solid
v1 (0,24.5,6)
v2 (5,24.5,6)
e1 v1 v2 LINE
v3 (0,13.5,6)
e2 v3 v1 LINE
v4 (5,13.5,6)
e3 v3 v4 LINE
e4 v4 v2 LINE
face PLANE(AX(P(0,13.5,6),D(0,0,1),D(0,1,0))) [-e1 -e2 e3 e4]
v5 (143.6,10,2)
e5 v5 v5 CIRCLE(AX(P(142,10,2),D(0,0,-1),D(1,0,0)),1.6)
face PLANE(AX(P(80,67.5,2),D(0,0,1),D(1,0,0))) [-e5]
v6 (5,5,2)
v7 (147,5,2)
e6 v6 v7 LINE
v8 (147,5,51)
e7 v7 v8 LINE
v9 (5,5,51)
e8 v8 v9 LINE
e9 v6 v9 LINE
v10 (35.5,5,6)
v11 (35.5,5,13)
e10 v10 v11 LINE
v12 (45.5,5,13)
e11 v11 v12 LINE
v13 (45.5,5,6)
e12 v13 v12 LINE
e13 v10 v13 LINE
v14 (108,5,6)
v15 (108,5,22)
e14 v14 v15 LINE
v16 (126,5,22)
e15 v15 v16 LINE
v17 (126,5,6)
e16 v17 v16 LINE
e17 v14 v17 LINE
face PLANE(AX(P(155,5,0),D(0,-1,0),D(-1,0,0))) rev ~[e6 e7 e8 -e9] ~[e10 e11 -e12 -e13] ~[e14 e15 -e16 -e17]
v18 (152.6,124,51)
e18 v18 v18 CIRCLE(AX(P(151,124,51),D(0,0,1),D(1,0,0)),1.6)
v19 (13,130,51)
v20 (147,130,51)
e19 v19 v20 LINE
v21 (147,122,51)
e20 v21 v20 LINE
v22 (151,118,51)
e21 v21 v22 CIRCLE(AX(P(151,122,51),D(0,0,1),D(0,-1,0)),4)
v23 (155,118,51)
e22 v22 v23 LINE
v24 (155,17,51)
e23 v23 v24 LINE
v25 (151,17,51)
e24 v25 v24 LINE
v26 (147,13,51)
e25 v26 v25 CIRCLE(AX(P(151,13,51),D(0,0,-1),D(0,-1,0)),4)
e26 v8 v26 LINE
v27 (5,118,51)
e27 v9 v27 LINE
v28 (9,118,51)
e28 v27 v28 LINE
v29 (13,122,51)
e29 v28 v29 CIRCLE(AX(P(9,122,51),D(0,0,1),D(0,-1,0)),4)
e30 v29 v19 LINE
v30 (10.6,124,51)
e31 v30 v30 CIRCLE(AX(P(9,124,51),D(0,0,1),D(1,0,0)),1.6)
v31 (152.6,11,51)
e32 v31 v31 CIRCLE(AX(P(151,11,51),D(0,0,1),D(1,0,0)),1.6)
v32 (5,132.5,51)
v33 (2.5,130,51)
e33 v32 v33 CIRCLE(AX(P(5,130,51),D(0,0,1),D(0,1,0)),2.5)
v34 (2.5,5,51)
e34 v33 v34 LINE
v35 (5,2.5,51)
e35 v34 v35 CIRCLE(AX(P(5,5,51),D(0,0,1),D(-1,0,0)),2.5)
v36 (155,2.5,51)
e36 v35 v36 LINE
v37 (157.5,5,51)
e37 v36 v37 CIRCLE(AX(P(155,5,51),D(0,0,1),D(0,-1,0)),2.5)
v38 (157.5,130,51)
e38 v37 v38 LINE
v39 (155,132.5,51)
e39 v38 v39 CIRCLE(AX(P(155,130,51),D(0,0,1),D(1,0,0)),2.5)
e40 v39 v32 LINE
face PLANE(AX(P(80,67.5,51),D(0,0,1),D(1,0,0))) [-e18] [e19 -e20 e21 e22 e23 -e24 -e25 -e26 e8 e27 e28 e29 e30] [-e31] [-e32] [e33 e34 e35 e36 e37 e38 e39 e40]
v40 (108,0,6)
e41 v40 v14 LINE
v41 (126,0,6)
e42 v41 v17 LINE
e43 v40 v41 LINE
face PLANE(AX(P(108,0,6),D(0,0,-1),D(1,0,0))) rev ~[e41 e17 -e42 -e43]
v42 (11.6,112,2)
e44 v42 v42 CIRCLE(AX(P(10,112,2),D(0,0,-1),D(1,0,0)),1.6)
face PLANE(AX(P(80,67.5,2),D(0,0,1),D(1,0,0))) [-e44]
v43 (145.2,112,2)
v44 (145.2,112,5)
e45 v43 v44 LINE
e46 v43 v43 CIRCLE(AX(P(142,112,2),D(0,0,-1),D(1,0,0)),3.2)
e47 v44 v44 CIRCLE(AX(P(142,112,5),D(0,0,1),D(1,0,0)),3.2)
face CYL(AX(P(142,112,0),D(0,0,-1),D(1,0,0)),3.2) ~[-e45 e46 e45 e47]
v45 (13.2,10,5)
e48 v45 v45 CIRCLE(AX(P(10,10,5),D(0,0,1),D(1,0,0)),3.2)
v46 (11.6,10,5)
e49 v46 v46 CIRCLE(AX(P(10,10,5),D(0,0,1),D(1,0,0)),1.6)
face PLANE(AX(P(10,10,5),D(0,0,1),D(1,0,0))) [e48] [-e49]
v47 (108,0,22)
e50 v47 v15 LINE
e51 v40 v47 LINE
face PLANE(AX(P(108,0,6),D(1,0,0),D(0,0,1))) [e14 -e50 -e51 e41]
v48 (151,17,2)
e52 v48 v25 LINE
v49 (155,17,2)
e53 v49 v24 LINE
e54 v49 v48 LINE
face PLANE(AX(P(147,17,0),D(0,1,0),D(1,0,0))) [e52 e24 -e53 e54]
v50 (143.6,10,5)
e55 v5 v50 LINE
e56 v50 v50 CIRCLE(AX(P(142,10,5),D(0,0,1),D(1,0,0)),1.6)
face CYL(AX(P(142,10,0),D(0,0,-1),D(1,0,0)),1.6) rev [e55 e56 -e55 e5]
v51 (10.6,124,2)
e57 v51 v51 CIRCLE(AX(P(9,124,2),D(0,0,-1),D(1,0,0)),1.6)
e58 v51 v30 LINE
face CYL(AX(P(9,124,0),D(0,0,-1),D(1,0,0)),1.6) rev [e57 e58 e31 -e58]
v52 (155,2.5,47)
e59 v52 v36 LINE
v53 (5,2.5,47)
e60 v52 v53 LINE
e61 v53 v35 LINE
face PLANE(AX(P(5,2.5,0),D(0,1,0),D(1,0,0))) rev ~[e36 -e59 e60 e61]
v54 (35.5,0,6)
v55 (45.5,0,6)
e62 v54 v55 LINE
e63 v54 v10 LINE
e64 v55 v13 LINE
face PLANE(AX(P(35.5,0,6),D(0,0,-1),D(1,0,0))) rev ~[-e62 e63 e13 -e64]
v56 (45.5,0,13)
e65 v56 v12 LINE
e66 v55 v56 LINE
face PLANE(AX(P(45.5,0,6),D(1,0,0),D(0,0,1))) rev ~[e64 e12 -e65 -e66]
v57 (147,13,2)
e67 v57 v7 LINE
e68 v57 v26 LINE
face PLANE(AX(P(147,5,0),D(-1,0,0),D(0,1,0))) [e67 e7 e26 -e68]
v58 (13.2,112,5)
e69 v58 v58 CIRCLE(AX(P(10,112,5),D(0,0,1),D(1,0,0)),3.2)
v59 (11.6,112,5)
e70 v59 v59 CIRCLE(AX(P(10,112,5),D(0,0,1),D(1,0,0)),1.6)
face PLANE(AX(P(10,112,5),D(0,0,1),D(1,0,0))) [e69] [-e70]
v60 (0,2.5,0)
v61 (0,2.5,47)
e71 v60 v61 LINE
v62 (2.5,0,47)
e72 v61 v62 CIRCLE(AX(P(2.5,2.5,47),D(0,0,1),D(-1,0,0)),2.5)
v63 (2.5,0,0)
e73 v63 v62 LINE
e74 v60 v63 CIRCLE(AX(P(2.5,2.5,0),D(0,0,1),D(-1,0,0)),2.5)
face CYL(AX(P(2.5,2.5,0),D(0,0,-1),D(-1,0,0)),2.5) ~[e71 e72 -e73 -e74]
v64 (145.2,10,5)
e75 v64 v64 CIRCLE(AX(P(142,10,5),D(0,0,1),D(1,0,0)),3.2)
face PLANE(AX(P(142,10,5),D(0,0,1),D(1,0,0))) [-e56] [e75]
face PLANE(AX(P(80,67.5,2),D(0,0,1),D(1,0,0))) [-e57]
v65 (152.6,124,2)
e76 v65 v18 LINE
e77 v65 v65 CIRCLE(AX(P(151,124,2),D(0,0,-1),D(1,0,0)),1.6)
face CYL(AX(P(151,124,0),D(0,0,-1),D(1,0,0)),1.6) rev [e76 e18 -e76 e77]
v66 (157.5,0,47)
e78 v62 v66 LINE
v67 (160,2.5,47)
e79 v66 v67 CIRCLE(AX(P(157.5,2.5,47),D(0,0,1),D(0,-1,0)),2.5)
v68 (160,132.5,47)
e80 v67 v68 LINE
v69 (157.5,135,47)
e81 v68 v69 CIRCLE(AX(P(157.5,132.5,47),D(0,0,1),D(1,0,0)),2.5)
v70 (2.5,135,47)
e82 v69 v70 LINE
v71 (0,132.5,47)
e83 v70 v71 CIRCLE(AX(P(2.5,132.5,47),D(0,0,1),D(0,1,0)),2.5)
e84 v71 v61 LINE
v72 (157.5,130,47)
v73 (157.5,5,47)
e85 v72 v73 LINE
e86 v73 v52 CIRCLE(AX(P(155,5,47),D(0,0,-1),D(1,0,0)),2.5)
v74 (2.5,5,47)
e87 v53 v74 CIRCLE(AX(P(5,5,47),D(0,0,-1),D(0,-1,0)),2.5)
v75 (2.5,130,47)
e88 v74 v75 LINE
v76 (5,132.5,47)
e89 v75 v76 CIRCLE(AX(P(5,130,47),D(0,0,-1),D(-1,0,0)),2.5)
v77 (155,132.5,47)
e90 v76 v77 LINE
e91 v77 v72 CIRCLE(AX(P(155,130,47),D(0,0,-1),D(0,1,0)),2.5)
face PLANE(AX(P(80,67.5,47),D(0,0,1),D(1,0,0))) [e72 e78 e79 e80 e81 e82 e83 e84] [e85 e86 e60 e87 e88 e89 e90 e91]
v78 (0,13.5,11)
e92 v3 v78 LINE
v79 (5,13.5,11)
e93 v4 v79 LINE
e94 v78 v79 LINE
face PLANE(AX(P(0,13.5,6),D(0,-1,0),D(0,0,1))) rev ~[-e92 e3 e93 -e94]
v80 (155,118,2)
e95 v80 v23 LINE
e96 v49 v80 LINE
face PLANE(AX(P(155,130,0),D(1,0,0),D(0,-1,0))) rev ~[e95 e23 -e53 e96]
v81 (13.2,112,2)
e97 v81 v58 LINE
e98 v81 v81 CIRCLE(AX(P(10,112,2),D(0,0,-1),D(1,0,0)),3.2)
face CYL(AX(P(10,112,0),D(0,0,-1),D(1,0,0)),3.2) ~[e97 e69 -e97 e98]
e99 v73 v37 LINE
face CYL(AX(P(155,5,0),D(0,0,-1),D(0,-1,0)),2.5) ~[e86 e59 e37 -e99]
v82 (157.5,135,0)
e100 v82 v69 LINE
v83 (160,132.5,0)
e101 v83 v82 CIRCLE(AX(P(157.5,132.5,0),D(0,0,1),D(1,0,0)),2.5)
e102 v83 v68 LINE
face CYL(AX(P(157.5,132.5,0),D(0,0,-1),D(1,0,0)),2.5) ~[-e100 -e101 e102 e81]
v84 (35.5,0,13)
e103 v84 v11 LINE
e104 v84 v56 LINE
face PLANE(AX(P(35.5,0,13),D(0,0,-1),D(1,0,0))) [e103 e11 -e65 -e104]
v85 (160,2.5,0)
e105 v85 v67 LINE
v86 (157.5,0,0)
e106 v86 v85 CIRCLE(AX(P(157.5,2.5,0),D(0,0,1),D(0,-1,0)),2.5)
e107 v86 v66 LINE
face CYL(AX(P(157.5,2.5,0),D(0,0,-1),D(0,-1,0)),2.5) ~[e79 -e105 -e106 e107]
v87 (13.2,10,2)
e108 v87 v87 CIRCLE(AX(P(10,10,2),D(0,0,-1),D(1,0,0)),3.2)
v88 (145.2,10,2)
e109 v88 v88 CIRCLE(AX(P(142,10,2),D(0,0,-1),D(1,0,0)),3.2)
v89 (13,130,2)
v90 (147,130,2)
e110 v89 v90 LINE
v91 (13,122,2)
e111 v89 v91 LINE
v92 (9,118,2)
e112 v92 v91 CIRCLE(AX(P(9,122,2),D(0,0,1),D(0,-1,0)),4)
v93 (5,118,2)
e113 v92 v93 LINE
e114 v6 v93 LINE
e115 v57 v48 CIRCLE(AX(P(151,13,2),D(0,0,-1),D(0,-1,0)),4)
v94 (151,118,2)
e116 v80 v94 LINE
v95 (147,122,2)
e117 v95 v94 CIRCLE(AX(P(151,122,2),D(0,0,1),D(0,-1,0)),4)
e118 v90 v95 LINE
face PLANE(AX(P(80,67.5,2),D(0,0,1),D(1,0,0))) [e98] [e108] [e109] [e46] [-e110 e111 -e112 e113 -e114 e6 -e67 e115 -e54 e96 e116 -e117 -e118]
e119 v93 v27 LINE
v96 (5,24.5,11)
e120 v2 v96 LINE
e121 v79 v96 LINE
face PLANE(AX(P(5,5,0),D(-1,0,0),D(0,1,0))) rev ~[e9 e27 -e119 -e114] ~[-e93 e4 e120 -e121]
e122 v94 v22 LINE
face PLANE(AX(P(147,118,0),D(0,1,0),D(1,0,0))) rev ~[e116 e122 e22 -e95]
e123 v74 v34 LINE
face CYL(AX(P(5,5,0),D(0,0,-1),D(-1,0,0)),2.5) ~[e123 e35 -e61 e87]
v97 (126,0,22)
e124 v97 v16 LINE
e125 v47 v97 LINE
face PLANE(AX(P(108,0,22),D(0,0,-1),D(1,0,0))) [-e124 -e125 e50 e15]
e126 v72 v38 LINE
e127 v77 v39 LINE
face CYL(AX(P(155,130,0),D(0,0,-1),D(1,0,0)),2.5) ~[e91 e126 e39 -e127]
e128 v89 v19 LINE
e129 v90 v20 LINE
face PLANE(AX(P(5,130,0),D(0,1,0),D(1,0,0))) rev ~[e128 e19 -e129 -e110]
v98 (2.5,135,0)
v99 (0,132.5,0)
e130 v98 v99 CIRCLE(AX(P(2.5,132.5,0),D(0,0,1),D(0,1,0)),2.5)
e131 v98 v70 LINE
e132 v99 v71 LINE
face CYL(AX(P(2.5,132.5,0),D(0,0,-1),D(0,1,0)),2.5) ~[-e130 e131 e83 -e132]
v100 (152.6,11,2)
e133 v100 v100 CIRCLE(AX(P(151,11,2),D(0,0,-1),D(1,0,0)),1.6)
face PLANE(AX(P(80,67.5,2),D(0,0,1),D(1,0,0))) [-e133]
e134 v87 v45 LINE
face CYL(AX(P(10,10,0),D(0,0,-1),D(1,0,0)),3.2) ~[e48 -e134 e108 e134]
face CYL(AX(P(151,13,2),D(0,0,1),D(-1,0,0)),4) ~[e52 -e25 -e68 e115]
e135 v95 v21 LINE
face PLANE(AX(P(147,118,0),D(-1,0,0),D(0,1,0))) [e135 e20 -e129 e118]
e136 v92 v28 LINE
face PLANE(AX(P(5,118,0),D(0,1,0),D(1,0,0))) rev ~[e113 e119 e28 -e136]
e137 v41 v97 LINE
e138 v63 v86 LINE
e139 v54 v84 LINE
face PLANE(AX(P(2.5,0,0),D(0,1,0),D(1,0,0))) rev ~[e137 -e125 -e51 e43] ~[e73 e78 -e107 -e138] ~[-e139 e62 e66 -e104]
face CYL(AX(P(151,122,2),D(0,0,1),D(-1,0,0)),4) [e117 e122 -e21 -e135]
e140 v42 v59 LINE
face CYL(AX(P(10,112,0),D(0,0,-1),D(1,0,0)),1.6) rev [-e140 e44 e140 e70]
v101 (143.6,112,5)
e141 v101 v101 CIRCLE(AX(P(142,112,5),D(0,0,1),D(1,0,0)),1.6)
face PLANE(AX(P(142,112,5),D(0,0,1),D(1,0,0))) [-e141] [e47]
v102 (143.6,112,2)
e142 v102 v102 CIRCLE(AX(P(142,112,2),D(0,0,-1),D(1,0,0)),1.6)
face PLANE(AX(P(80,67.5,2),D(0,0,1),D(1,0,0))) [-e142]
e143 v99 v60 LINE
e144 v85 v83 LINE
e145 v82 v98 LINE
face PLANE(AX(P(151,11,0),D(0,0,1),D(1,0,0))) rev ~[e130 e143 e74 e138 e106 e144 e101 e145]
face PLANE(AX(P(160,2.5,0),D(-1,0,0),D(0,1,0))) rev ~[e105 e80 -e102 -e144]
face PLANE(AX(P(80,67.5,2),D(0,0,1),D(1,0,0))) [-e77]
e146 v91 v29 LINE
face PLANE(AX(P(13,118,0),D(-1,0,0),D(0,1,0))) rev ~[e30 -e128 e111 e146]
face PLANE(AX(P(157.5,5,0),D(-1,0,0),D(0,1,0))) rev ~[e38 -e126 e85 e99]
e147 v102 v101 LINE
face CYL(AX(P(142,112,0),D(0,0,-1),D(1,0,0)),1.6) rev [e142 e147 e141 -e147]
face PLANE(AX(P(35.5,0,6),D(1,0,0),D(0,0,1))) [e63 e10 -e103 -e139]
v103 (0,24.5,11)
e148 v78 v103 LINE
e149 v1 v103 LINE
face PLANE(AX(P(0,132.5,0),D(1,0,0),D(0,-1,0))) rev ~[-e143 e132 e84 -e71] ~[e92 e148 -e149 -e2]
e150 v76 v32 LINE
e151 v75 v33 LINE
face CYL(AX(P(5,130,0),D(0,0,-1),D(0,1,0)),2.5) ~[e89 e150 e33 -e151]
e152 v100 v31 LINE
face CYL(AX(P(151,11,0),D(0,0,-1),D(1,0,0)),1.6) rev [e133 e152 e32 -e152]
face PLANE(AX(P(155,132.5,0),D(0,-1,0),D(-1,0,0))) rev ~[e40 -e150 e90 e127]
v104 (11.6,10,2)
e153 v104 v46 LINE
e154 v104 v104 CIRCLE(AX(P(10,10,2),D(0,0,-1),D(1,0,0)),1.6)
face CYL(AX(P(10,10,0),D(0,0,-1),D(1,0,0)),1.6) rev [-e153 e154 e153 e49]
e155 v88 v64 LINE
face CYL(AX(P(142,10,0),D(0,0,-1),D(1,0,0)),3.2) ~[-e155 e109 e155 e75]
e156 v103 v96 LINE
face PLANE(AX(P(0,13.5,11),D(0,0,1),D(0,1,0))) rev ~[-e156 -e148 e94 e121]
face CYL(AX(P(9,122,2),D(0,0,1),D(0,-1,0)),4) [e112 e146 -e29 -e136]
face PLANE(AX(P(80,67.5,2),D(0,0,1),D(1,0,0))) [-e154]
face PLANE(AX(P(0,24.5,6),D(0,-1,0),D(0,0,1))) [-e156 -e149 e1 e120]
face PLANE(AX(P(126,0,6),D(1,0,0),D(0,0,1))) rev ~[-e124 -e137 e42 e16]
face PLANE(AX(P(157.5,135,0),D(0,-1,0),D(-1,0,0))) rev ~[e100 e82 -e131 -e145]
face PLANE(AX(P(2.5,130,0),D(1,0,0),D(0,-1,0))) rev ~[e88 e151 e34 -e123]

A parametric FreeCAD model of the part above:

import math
import FreeCAD as App
import Part
import Sketcher
from FreeCAD import Vector
Q = App.Units.Quantity


def edges_at(feature, points):
    """Names of the edges that pass closest to the given points."""
    edges = feature.Shape.Edges
    near = lambda p: min(range(len(edges)), key=lambda i: edges[i].distToShape(Part.Vertex(*p))[0])
    return sorted({f"Edge{near(p) + 1}" for p in points})

doc = App.newDocument("Part")
params = doc.addObject("Spreadsheet::Sheet", "Params")
for row, (alias, value) in enumerate([
    ("sketch1_width", "150 mm"),
    ("sketch1_height", "125 mm"),
    ("pad1_length", "2 mm"),
    ("sketch2_radius", "2.5 mm"),
    ("sketch2_width", "150 mm"),
    ("sketch2_height", "125 mm"),
    ("pad2_length", "51 mm"),
    ("sketch3_radius", "2.5 mm"),
    ("sketch3_width", "155 mm"),
    ("sketch3_height", "130 mm"),
    ("pad3_length", "47 mm"),
    ("sketch4_diameter", "6.4 mm"),
    ("sketch4_diameter2", "3.2 mm"),
    ("pad4_length", "5 mm"),
    ("sketch5_width", "18 mm"),
    ("sketch5_width2", "10 mm"),
    ("sketch5_height", "16 mm"),
    ("sketch5_height2", "7 mm"),
    ("pocket1_length", "15 mm"),
    ("sketch6_width", "11 mm"),
    ("sketch6_height", "5 mm"),
    ("pocket2_length", "15 mm"),
    ("sketch7_diameter", "3.2 mm"),
    ("sketch7_width", "8 mm"),
    ("sketch7_height", "12 mm"),
    ("pad5_length", "51 mm"),
    ("fillet_radius", "4 mm"),
], start=1):
    params.set(f"A{row}", alias)
    params.set(f"B{row}", "=" + value)
    params.setAlias(f"B{row}", alias)

body = doc.addObject("PartDesign::Body", "Body")

# Sketch on XY plane
sketch1 = body.newObject("Sketcher::SketchObject", "Sketch")
sketch1.AttachmentSupport = (doc.getObject("XY_Plane"), [""])
sketch1.MapMode = "FlatFace"
sketch1.addGeometry(Part.LineSegment(Vector(5, 130, 0), Vector(5, 5, 0)), False)
sketch1.addGeometry(Part.LineSegment(Vector(5, 5, 0), Vector(155, 5, 0)), False)
sketch1.addGeometry(Part.LineSegment(Vector(155, 5, 0), Vector(155, 130, 0)), False)
sketch1.addGeometry(Part.LineSegment(Vector(155, 130, 0), Vector(5, 130, 0)), False)
sketch1.addConstraint(Sketcher.Constraint("Coincident", 0, 2, 1, 1))
sketch1.addConstraint(Sketcher.Constraint("Coincident", 1, 2, 2, 1))
sketch1.addConstraint(Sketcher.Constraint("Coincident", 2, 2, 3, 1))
sketch1.addConstraint(Sketcher.Constraint("Coincident", 3, 2, 0, 1))
sketch1.addConstraint(Sketcher.Constraint("Vertical", 0))
sketch1.addConstraint(Sketcher.Constraint("Horizontal", 1))
sketch1.addConstraint(Sketcher.Constraint("Vertical", 2))
sketch1.addConstraint(Sketcher.Constraint("Horizontal", 3))
sketch1.addConstraint(Sketcher.Constraint("DistanceX", 1, 1, 1, 2, Q("150 mm")))
sketch1.addConstraint(Sketcher.Constraint("DistanceY", 0, 2, 0, 1, Q("125 mm")))
sketch1.addConstraint(Sketcher.Constraint("DistanceX", -1, 1, 0, 2, Q("5 mm")))
sketch1.addConstraint(Sketcher.Constraint("DistanceY", -1, 1, 0, 2, Q("5 mm")))
sketch1.setExpression("Constraints[8]", "Params.sketch1_width")
sketch1.setExpression("Constraints[9]", "Params.sketch1_height")
pad1 = body.newObject("PartDesign::Pad", "Pad")
pad1.Profile = sketch1
pad1.setExpression("Length", "Params.pad1_length")

# Sketch on XY plane
sketch2 = body.newObject("Sketcher::SketchObject", "Sketch001")
sketch2.AttachmentSupport = (doc.getObject("XY_Plane"), [""])
sketch2.MapMode = "FlatFace"
sketch2.addGeometry(Part.ArcOfCircle(Part.Circle(Vector(5, 5, 0), Vector(0, 0, 1), 2.5), math.radians(180), math.radians(270)), False)
sketch2.addGeometry(Part.LineSegment(Vector(5, 2.5, 0), Vector(155, 2.5, 0)), False)
sketch2.addGeometry(Part.ArcOfCircle(Part.Circle(Vector(155, 5, 0), Vector(0, 0, 1), 2.5), math.radians(-90), math.radians(0)), False)
sketch2.addGeometry(Part.LineSegment(Vector(157.5, 5, 0), Vector(157.5, 130, 0)), False)
sketch2.addGeometry(Part.ArcOfCircle(Part.Circle(Vector(155, 130, 0), Vector(0, 0, 1), 2.5), math.radians(0), math.radians(90)), False)
sketch2.addGeometry(Part.LineSegment(Vector(155, 132.5, 0), Vector(5, 132.5, 0)), False)
sketch2.addGeometry(Part.ArcOfCircle(Part.Circle(Vector(5, 130, 0), Vector(0, 0, 1), 2.5), math.radians(90), math.radians(180)), False)
sketch2.addGeometry(Part.LineSegment(Vector(2.5, 130, 0), Vector(2.5, 5, 0)), False)
sketch2.addGeometry(Part.LineSegment(Vector(155, 5, 0), Vector(5, 5, 0)), False)
sketch2.addGeometry(Part.LineSegment(Vector(5, 5, 0), Vector(5, 130, 0)), False)
sketch2.addGeometry(Part.LineSegment(Vector(5, 130, 0), Vector(155, 130, 0)), False)
sketch2.addGeometry(Part.LineSegment(Vector(155, 130, 0), Vector(155, 5, 0)), False)
sketch2.addConstraint(Sketcher.Constraint("Tangent", 0, 2, 1, 1))
sketch2.addConstraint(Sketcher.Constraint("Tangent", 1, 2, 2, 1))
sketch2.addConstraint(Sketcher.Constraint("Tangent", 2, 2, 3, 1))
sketch2.addConstraint(Sketcher.Constraint("Tangent", 3, 2, 4, 1))
sketch2.addConstraint(Sketcher.Constraint("Tangent", 4, 2, 5, 1))
sketch2.addConstraint(Sketcher.Constraint("Tangent", 5, 2, 6, 1))
sketch2.addConstraint(Sketcher.Constraint("Tangent", 6, 2, 7, 1))
sketch2.addConstraint(Sketcher.Constraint("Tangent", 7, 2, 0, 1))
sketch2.addConstraint(Sketcher.Constraint("Coincident", 8, 2, 9, 1))
sketch2.addConstraint(Sketcher.Constraint("Coincident", 9, 2, 10, 1))
sketch2.addConstraint(Sketcher.Constraint("Coincident", 10, 2, 11, 1))
sketch2.addConstraint(Sketcher.Constraint("Coincident", 11, 2, 8, 1))
sketch2.addConstraint(Sketcher.Constraint("Horizontal", 1))
sketch2.addConstraint(Sketcher.Constraint("Vertical", 3))
sketch2.addConstraint(Sketcher.Constraint("Horizontal", 5))
sketch2.addConstraint(Sketcher.Constraint("Vertical", 7))
sketch2.addConstraint(Sketcher.Constraint("Horizontal", 8))
sketch2.addConstraint(Sketcher.Constraint("Vertical", 9))
sketch2.addConstraint(Sketcher.Constraint("Horizontal", 10))
sketch2.addConstraint(Sketcher.Constraint("Vertical", 11))
sketch2.addConstraint(Sketcher.Constraint("Coincident", 8, 2, 0, 3))
sketch2.addConstraint(Sketcher.Constraint("Coincident", 9, 2, 6, 3))
sketch2.addConstraint(Sketcher.Constraint("Coincident", 10, 2, 4, 3))
sketch2.addConstraint(Sketcher.Constraint("Equal", 0, 2))
sketch2.addConstraint(Sketcher.Constraint("Radius", 0, Q("2.5 mm")))
sketch2.addConstraint(Sketcher.Constraint("DistanceX", 1, 1, 1, 2, Q("150 mm")))
sketch2.addConstraint(Sketcher.Constraint("DistanceY", 3, 1, 3, 2, Q("125 mm")))
sketch2.addConstraint(Sketcher.Constraint("DistanceX", -1, 1, 0, 3, Q("5 mm")))
sketch2.addConstraint(Sketcher.Constraint("DistanceY", -1, 1, 0, 3, Q("5 mm")))
sketch2.setExpression("Constraints[24]", "Params.sketch2_radius")
sketch2.setExpression("Constraints[25]", "Params.sketch2_width")
sketch2.setExpression("Constraints[26]", "Params.sketch2_height")
pad2 = body.newObject("PartDesign::Pad", "Pad001")
pad2.Profile = sketch2
pad2.setExpression("Length", "Params.pad2_length")

# Sketch on XY plane
sketch3 = body.newObject("Sketcher::SketchObject", "Sketch002")
sketch3.AttachmentSupport = (doc.getObject("XY_Plane"), [""])
sketch3.MapMode = "FlatFace"
sketch3.addGeometry(Part.ArcOfCircle(Part.Circle(Vector(2.5, 2.5, 0), Vector(0, 0, 1), 2.5), math.radians(180), math.radians(270)), False)
sketch3.addGeometry(Part.LineSegment(Vector(2.5, 0, 0), Vector(157.5, 0, 0)), False)
sketch3.addGeometry(Part.ArcOfCircle(Part.Circle(Vector(157.5, 2.5, 0), Vector(0, 0, 1), 2.5), math.radians(-90), math.radians(0)), False)
sketch3.addGeometry(Part.LineSegment(Vector(160, 2.5, 0), Vector(160, 132.5, 0)), False)
sketch3.addGeometry(Part.ArcOfCircle(Part.Circle(Vector(157.5, 132.5, 0), Vector(0, 0, 1), 2.5), math.radians(0), math.radians(90)), False)
sketch3.addGeometry(Part.LineSegment(Vector(157.5, 135, 0), Vector(2.5, 135, 0)), False)
sketch3.addGeometry(Part.ArcOfCircle(Part.Circle(Vector(2.5, 132.5, 0), Vector(0, 0, 1), 2.5), math.radians(90), math.radians(180)), False)
sketch3.addGeometry(Part.LineSegment(Vector(0, 132.5, 0), Vector(0, 2.5, 0)), False)
sketch3.addGeometry(Part.LineSegment(Vector(155, 2.5, 0), Vector(5, 2.5, 0)), False)
sketch3.addGeometry(Part.ArcOfCircle(Part.Circle(Vector(5, 5, 0), Vector(0, 0, 1), 2.5), math.radians(180), math.radians(270)), False)
sketch3.addGeometry(Part.LineSegment(Vector(2.5, 5, 0), Vector(2.5, 130, 0)), False)
sketch3.addGeometry(Part.ArcOfCircle(Part.Circle(Vector(5, 130, 0), Vector(0, 0, 1), 2.5), math.radians(90), math.radians(180)), False)
sketch3.addGeometry(Part.LineSegment(Vector(5, 132.5, 0), Vector(155, 132.5, 0)), False)
sketch3.addGeometry(Part.ArcOfCircle(Part.Circle(Vector(155, 130, 0), Vector(0, 0, 1), 2.5), math.radians(0), math.radians(90)), False)
sketch3.addGeometry(Part.LineSegment(Vector(157.5, 130, 0), Vector(157.5, 5, 0)), False)
sketch3.addGeometry(Part.ArcOfCircle(Part.Circle(Vector(155, 5, 0), Vector(0, 0, 1), 2.5), math.radians(-90), math.radians(0)), False)
sketch3.addConstraint(Sketcher.Constraint("Tangent", 0, 2, 1, 1))
sketch3.addConstraint(Sketcher.Constraint("Tangent", 1, 2, 2, 1))
sketch3.addConstraint(Sketcher.Constraint("Tangent", 2, 2, 3, 1))
sketch3.addConstraint(Sketcher.Constraint("Tangent", 3, 2, 4, 1))
sketch3.addConstraint(Sketcher.Constraint("Tangent", 4, 2, 5, 1))
sketch3.addConstraint(Sketcher.Constraint("Tangent", 5, 2, 6, 1))
sketch3.addConstraint(Sketcher.Constraint("Tangent", 6, 2, 7, 1))
sketch3.addConstraint(Sketcher.Constraint("Tangent", 7, 2, 0, 1))
sketch3.addConstraint(Sketcher.Constraint("Tangent", 8, 2, 9, 2))
sketch3.addConstraint(Sketcher.Constraint("Tangent", 9, 1, 10, 1))
sketch3.addConstraint(Sketcher.Constraint("Tangent", 10, 2, 11, 2))
sketch3.addConstraint(Sketcher.Constraint("Tangent", 11, 1, 12, 1))
sketch3.addConstraint(Sketcher.Constraint("Tangent", 12, 2, 13, 2))
sketch3.addConstraint(Sketcher.Constraint("Tangent", 13, 1, 14, 1))
sketch3.addConstraint(Sketcher.Constraint("Tangent", 14, 2, 15, 2))
sketch3.addConstraint(Sketcher.Constraint("Tangent", 15, 1, 8, 1))
sketch3.addConstraint(Sketcher.Constraint("Horizontal", 1))
sketch3.addConstraint(Sketcher.Constraint("Vertical", 3))
sketch3.addConstraint(Sketcher.Constraint("Horizontal", 5))
sketch3.addConstraint(Sketcher.Constraint("Vertical", 7))
sketch3.addConstraint(Sketcher.Constraint("Horizontal", 8))
sketch3.addConstraint(Sketcher.Constraint("Vertical", 10))
sketch3.addConstraint(Sketcher.Constraint("Horizontal", 12))
sketch3.addConstraint(Sketcher.Constraint("Vertical", 14))
sketch3.addConstraint(Sketcher.Constraint("Equal", 0, 2))
sketch3.addConstraint(Sketcher.Constraint("Equal", 2, 4))
sketch3.addConstraint(Sketcher.Constraint("Equal", 4, 6))
sketch3.addConstraint(Sketcher.Constraint("Equal", 6, 9))
sketch3.addConstraint(Sketcher.Constraint("Equal", 9, 11))
sketch3.addConstraint(Sketcher.Constraint("Equal", 11, 13))
sketch3.addConstraint(Sketcher.Constraint("Equal", 13, 15))
sketch3.addConstraint(Sketcher.Constraint("PointOnObject", 0, 2, -1))
sketch3.addConstraint(Sketcher.Constraint("PointOnObject", 6, 2, -2))
sketch3.addConstraint(Sketcher.Constraint("Horizontal", 7, 2, 8, 2))
sketch3.addConstraint(Sketcher.Constraint("Horizontal", 6, 2, 11, 1))
sketch3.addConstraint(Sketcher.Constraint("Vertical", 5, 2, 9, 1))
sketch3.addConstraint(Sketcher.Constraint("Vertical", 4, 2, 13, 1))
sketch3.addConstraint(Sketcher.Constraint("Radius", 0, Q("2.5 mm")))
sketch3.addConstraint(Sketcher.Constraint("DistanceX", 1, 1, 1, 2, Q("155 mm")))
sketch3.addConstraint(Sketcher.Constraint("DistanceY", 3, 1, 3, 2, Q("130 mm")))
sketch3.setExpression("Constraints[37]", "Params.sketch3_radius")
sketch3.setExpression("Constraints[38]", "Params.sketch3_width")
sketch3.setExpression("Constraints[39]", "Params.sketch3_height")
pad3 = body.newObject("PartDesign::Pad", "Pad002")
pad3.Profile = sketch3
pad3.setExpression("Length", "Params.pad3_length")

# Sketch on XY plane
sketch4 = body.newObject("Sketcher::SketchObject", "Sketch003")
sketch4.AttachmentSupport = (doc.getObject("XY_Plane"), [""])
sketch4.MapMode = "FlatFace"
sketch4.addGeometry(Part.Circle(Vector(142, 112, 0), Vector(0, 0, 1), 3.2), False)
sketch4.addGeometry(Part.Circle(Vector(142, 112, 0), Vector(0, 0, 1), 1.6), False)
sketch4.addGeometry(Part.Circle(Vector(10, 112, 0), Vector(0, 0, 1), 3.2), False)
sketch4.addGeometry(Part.Circle(Vector(10, 112, 0), Vector(0, 0, 1), 1.6), False)
sketch4.addGeometry(Part.Circle(Vector(10, 10, 0), Vector(0, 0, 1), 3.2), False)
sketch4.addGeometry(Part.Circle(Vector(10, 10, 0), Vector(0, 0, 1), 1.6), False)
sketch4.addGeometry(Part.Circle(Vector(142, 10, 0), Vector(0, 0, 1), 3.2), False)
sketch4.addGeometry(Part.Circle(Vector(142, 10, 0), Vector(0, 0, 1), 1.6), False)
sketch4.addConstraint(Sketcher.Constraint("Coincident", 1, 3, 0, 3))
sketch4.addConstraint(Sketcher.Constraint("Coincident", 3, 3, 2, 3))
sketch4.addConstraint(Sketcher.Constraint("Coincident", 5, 3, 4, 3))
sketch4.addConstraint(Sketcher.Constraint("Coincident", 7, 3, 6, 3))
sketch4.addConstraint(Sketcher.Constraint("Equal", 0, 2))
sketch4.addConstraint(Sketcher.Constraint("Equal", 1, 3))
sketch4.addConstraint(Sketcher.Constraint("Equal", 2, 4))
sketch4.addConstraint(Sketcher.Constraint("Equal", 3, 5))
sketch4.addConstraint(Sketcher.Constraint("Equal", 4, 6))
sketch4.addConstraint(Sketcher.Constraint("Equal", 5, 7))
sketch4.addConstraint(Sketcher.Constraint("Horizontal", 1, 3, 2, 3))
sketch4.addConstraint(Sketcher.Constraint("Horizontal", 5, 3, 6, 3))
sketch4.addConstraint(Sketcher.Constraint("Vertical", 3, 3, 4, 3))
sketch4.addConstraint(Sketcher.Constraint("Vertical", 1, 3, 6, 3))
sketch4.addConstraint(Sketcher.Constraint("Diameter", 0, Q("6.4 mm")))
sketch4.addConstraint(Sketcher.Constraint("Diameter", 1, Q("3.2 mm")))
sketch4.addConstraint(Sketcher.Constraint("DistanceX", -1, 1, 0, 3, Q("142 mm")))
sketch4.addConstraint(Sketcher.Constraint("DistanceY", -1, 1, 0, 3, Q("112 mm")))
sketch4.addConstraint(Sketcher.Constraint("DistanceX", -1, 1, 2, 3, Q("10 mm")))
sketch4.addConstraint(Sketcher.Constraint("DistanceY", -1, 1, 4, 3, Q("10 mm")))
sketch4.setExpression("Constraints[14]", "Params.sketch4_diameter")
sketch4.setExpression("Constraints[15]", "Params.sketch4_diameter2")
pad4 = body.newObject("PartDesign::Pad", "Pad003")
pad4.Profile = sketch4
pad4.setExpression("Length", "Params.pad4_length")

# Sketch on XZ plane
sketch5 = body.newObject("Sketcher::SketchObject", "Sketch004")
sketch5.AttachmentSupport = (doc.getObject("XZ_Plane"), [""])
sketch5.MapMode = "FlatFace"
sketch5.addGeometry(Part.LineSegment(Vector(108, 22, 0), Vector(108, 6, 0)), False)
sketch5.addGeometry(Part.LineSegment(Vector(108, 6, 0), Vector(126, 6, 0)), False)
sketch5.addGeometry(Part.LineSegment(Vector(126, 6, 0), Vector(126, 22, 0)), False)
sketch5.addGeometry(Part.LineSegment(Vector(126, 22, 0), Vector(108, 22, 0)), False)
sketch5.addGeometry(Part.LineSegment(Vector(35.5, 13, 0), Vector(35.5, 6, 0)), False)
sketch5.addGeometry(Part.LineSegment(Vector(35.5, 6, 0), Vector(45.5, 6, 0)), False)
sketch5.addGeometry(Part.LineSegment(Vector(45.5, 6, 0), Vector(45.5, 13, 0)), False)
sketch5.addGeometry(Part.LineSegment(Vector(45.5, 13, 0), Vector(35.5, 13, 0)), False)
sketch5.addConstraint(Sketcher.Constraint("Coincident", 0, 2, 1, 1))
sketch5.addConstraint(Sketcher.Constraint("Coincident", 1, 2, 2, 1))
sketch5.addConstraint(Sketcher.Constraint("Coincident", 2, 2, 3, 1))
sketch5.addConstraint(Sketcher.Constraint("Coincident", 3, 2, 0, 1))
sketch5.addConstraint(Sketcher.Constraint("Coincident", 4, 2, 5, 1))
sketch5.addConstraint(Sketcher.Constraint("Coincident", 5, 2, 6, 1))
sketch5.addConstraint(Sketcher.Constraint("Coincident", 6, 2, 7, 1))
sketch5.addConstraint(Sketcher.Constraint("Coincident", 7, 2, 4, 1))
sketch5.addConstraint(Sketcher.Constraint("Vertical", 0))
sketch5.addConstraint(Sketcher.Constraint("Horizontal", 1))
sketch5.addConstraint(Sketcher.Constraint("Vertical", 2))
sketch5.addConstraint(Sketcher.Constraint("Horizontal", 3))
sketch5.addConstraint(Sketcher.Constraint("Vertical", 4))
sketch5.addConstraint(Sketcher.Constraint("Horizontal", 5))
sketch5.addConstraint(Sketcher.Constraint("Vertical", 6))
sketch5.addConstraint(Sketcher.Constraint("Horizontal", 7))
sketch5.addConstraint(Sketcher.Constraint("Horizontal", 1, 2, 4, 2))
sketch5.addConstraint(Sketcher.Constraint("DistanceX", 1, 1, 1, 2, Q("18 mm")))
sketch5.addConstraint(Sketcher.Constraint("DistanceX", 5, 1, 5, 2, Q("10 mm")))
sketch5.addConstraint(Sketcher.Constraint("DistanceY", 0, 2, 0, 1, Q("16 mm")))
sketch5.addConstraint(Sketcher.Constraint("DistanceY", 4, 2, 4, 1, Q("7 mm")))
sketch5.addConstraint(Sketcher.Constraint("DistanceX", -1, 1, 0, 2, Q("108 mm")))
sketch5.addConstraint(Sketcher.Constraint("DistanceY", -1, 1, 0, 2, Q("6 mm")))
sketch5.addConstraint(Sketcher.Constraint("DistanceX", -1, 1, 4, 2, Q("35.5 mm")))
sketch5.setExpression("Constraints[17]", "Params.sketch5_width")
sketch5.setExpression("Constraints[18]", "Params.sketch5_width2")
sketch5.setExpression("Constraints[19]", "Params.sketch5_height")
sketch5.setExpression("Constraints[20]", "Params.sketch5_height2")
pocket1 = body.newObject("PartDesign::Pocket", "Pocket")
pocket1.Profile = sketch5
pocket1.setExpression("Length", "Params.pocket1_length")

# Sketch on YZ plane
sketch6 = body.newObject("Sketcher::SketchObject", "Sketch005")
sketch6.AttachmentSupport = (doc.getObject("YZ_Plane"), [""])
sketch6.MapMode = "FlatFace"
sketch6.addGeometry(Part.LineSegment(Vector(24.5, 6, 0), Vector(13.5, 6, 0)), False)
sketch6.addGeometry(Part.LineSegment(Vector(13.5, 6, 0), Vector(13.5, 11, 0)), False)
sketch6.addGeometry(Part.LineSegment(Vector(13.5, 11, 0), Vector(24.5, 11, 0)), False)
sketch6.addGeometry(Part.LineSegment(Vector(24.5, 11, 0), Vector(24.5, 6, 0)), False)
sketch6.addConstraint(Sketcher.Constraint("Coincident", 0, 2, 1, 1))
sketch6.addConstraint(Sketcher.Constraint("Coincident", 1, 2, 2, 1))
sketch6.addConstraint(Sketcher.Constraint("Coincident", 2, 2, 3, 1))
sketch6.addConstraint(Sketcher.Constraint("Coincident", 3, 2, 0, 1))
sketch6.addConstraint(Sketcher.Constraint("Horizontal", 0))
sketch6.addConstraint(Sketcher.Constraint("Vertical", 1))
sketch6.addConstraint(Sketcher.Constraint("Horizontal", 2))
sketch6.addConstraint(Sketcher.Constraint("Vertical", 3))
sketch6.addConstraint(Sketcher.Constraint("DistanceX", 0, 2, 0, 1, Q("11 mm")))
sketch6.addConstraint(Sketcher.Constraint("DistanceY", 1, 1, 1, 2, Q("5 mm")))
sketch6.addConstraint(Sketcher.Constraint("DistanceY", -1, 1, 0, 2, Q("6 mm")))
sketch6.addConstraint(Sketcher.Constraint("DistanceX", -1, 1, 0, 2, Q("13.5 mm")))
sketch6.setExpression("Constraints[8]", "Params.sketch6_width")
sketch6.setExpression("Constraints[9]", "Params.sketch6_height")
pocket2 = body.newObject("PartDesign::Pocket", "Pocket001")
pocket2.Profile = sketch6
pocket2.setExpression("Length", "Params.pocket2_length")
pocket2.Reversed = True

# Sketch on XY plane
sketch7 = body.newObject("Sketcher::SketchObject", "Sketch006")
sketch7.AttachmentSupport = (doc.getObject("XY_Plane"), [""])
sketch7.MapMode = "FlatFace"
sketch7.addGeometry(Part.LineSegment(Vector(147, 17, 0), Vector(147, 5, 0)), False)
sketch7.addGeometry(Part.LineSegment(Vector(147, 5, 0), Vector(155, 5, 0)), False)
sketch7.addGeometry(Part.LineSegment(Vector(155, 5, 0), Vector(155, 17, 0)), False)
sketch7.addGeometry(Part.LineSegment(Vector(155, 17, 0), Vector(147, 17, 0)), False)
sketch7.addGeometry(Part.Circle(Vector(151, 11, 0), Vector(0, 0, 1), 1.6), False)
sketch7.addGeometry(Part.LineSegment(Vector(5, 130, 0), Vector(5, 118, 0)), False)
sketch7.addGeometry(Part.LineSegment(Vector(5, 118, 0), Vector(13, 118, 0)), False)
sketch7.addGeometry(Part.LineSegment(Vector(13, 118, 0), Vector(13, 130, 0)), False)
sketch7.addGeometry(Part.LineSegment(Vector(13, 130, 0), Vector(5, 130, 0)), False)
sketch7.addGeometry(Part.Circle(Vector(9, 124, 0), Vector(0, 0, 1), 1.6), False)
sketch7.addGeometry(Part.LineSegment(Vector(147, 130, 0), Vector(147, 118, 0)), False)
sketch7.addGeometry(Part.LineSegment(Vector(147, 118, 0), Vector(155, 118, 0)), False)
sketch7.addGeometry(Part.LineSegment(Vector(155, 118, 0), Vector(155, 130, 0)), False)
sketch7.addGeometry(Part.LineSegment(Vector(155, 130, 0), Vector(147, 130, 0)), False)
sketch7.addGeometry(Part.Circle(Vector(151, 124, 0), Vector(0, 0, 1), 1.6), False)
sketch7.addConstraint(Sketcher.Constraint("Coincident", 0, 2, 1, 1))
sketch7.addConstraint(Sketcher.Constraint("Coincident", 1, 2, 2, 1))
sketch7.addConstraint(Sketcher.Constraint("Coincident", 2, 2, 3, 1))
sketch7.addConstraint(Sketcher.Constraint("Coincident", 3, 2, 0, 1))
sketch7.addConstraint(Sketcher.Constraint("Coincident", 5, 2, 6, 1))
sketch7.addConstraint(Sketcher.Constraint("Coincident", 6, 2, 7, 1))
sketch7.addConstraint(Sketcher.Constraint("Coincident", 7, 2, 8, 1))
sketch7.addConstraint(Sketcher.Constraint("Coincident", 8, 2, 5, 1))
sketch7.addConstraint(Sketcher.Constraint("Coincident", 10, 2, 11, 1))
sketch7.addConstraint(Sketcher.Constraint("Coincident", 11, 2, 12, 1))
sketch7.addConstraint(Sketcher.Constraint("Coincident", 12, 2, 13, 1))
sketch7.addConstraint(Sketcher.Constraint("Coincident", 13, 2, 10, 1))
sketch7.addConstraint(Sketcher.Constraint("Vertical", 0))
sketch7.addConstraint(Sketcher.Constraint("Horizontal", 1))
sketch7.addConstraint(Sketcher.Constraint("Vertical", 2))
sketch7.addConstraint(Sketcher.Constraint("Horizontal", 3))
sketch7.addConstraint(Sketcher.Constraint("Vertical", 5))
sketch7.addConstraint(Sketcher.Constraint("Horizontal", 6))
sketch7.addConstraint(Sketcher.Constraint("Vertical", 7))
sketch7.addConstraint(Sketcher.Constraint("Horizontal", 8))
sketch7.addConstraint(Sketcher.Constraint("Vertical", 10))
sketch7.addConstraint(Sketcher.Constraint("Horizontal", 11))
sketch7.addConstraint(Sketcher.Constraint("Vertical", 12))
sketch7.addConstraint(Sketcher.Constraint("Horizontal", 13))
sketch7.addConstraint(Sketcher.Constraint("Equal", 4, 9))
sketch7.addConstraint(Sketcher.Constraint("Equal", 9, 14))
sketch7.addConstraint(Sketcher.Constraint("Horizontal", 9, 3, 14, 3))
sketch7.addConstraint(Sketcher.Constraint("Horizontal", 6, 2, 10, 2))
sketch7.addConstraint(Sketcher.Constraint("Horizontal", 8, 2, 12, 2))
sketch7.addConstraint(Sketcher.Constraint("Vertical", 4, 3, 14, 3))
sketch7.addConstraint(Sketcher.Constraint("Vertical", 3, 2, 10, 2))
sketch7.addConstraint(Sketcher.Constraint("Vertical", 2, 2, 11, 2))
sketch7.addConstraint(Sketcher.Constraint("Equal", 3, 6))
sketch7.addConstraint(Sketcher.Constraint("Equal", 2, 5))
sketch7.addConstraint(Sketcher.Constraint("Diameter", 4, Q("3.2 mm")))
sketch7.addConstraint(Sketcher.Constraint("DistanceX", 1, 1, 1, 2, Q("8 mm")))
sketch7.addConstraint(Sketcher.Constraint("DistanceY", 0, 2, 0, 1, Q("12 mm")))
sketch7.addConstraint(Sketcher.Constraint("DistanceX", -1, 1, 4, 3, Q("151 mm")))
sketch7.addConstraint(Sketcher.Constraint("DistanceY", -1, 1, 4, 3, Q("11 mm")))
sketch7.addConstraint(Sketcher.Constraint("DistanceX", -1, 1, 9, 3, Q("9 mm")))
sketch7.addConstraint(Sketcher.Constraint("DistanceY", -1, 1, 9, 3, Q("124 mm")))
sketch7.addConstraint(Sketcher.Constraint("DistanceX", -1, 1, 0, 2, Q("147 mm")))
sketch7.addConstraint(Sketcher.Constraint("DistanceY", -1, 1, 0, 2, Q("5 mm")))
sketch7.addConstraint(Sketcher.Constraint("DistanceX", -1, 1, 5, 2, Q("5 mm")))
sketch7.addConstraint(Sketcher.Constraint("DistanceY", -1, 1, 5, 2, Q("118 mm")))
sketch7.setExpression("Constraints[34]", "Params.sketch7_diameter")
sketch7.setExpression("Constraints[35]", "Params.sketch7_width")
sketch7.setExpression("Constraints[36]", "Params.sketch7_height")
pad5 = body.newObject("PartDesign::Pad", "Pad004")
pad5.Profile = sketch7
pad5.setExpression("Length", "Params.pad5_length")
doc.recompute()

fillet = body.newObject("PartDesign::Fillet", "Fillet")
fillet.Base = (pad5, edges_at(pad5, [(147, 118, 26.5), (147, 17, 26.5), (13, 118, 26.5)]))
fillet.setExpression("Radius", "Params.fillet_radius")

doc.recompute()
